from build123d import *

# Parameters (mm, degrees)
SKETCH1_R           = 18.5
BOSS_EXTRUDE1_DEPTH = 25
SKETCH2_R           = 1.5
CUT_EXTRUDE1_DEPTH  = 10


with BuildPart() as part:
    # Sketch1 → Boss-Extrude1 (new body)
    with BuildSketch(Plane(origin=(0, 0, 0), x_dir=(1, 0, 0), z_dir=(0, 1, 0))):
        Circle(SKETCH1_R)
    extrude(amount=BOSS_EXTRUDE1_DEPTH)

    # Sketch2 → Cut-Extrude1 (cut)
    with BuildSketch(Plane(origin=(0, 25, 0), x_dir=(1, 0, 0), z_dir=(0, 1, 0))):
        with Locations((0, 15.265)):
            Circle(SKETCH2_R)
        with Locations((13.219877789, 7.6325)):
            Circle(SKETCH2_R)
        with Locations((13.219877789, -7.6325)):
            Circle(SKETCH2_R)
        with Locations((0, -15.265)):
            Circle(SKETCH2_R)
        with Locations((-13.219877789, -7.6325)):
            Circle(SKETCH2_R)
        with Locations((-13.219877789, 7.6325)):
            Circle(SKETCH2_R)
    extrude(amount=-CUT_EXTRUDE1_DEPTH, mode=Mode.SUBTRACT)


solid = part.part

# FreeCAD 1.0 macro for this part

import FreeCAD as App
import Part
import Sketcher

doc = App.newDocument("Part")
body = doc.addObject("PartDesign::Body", "Body")

# Sketch on XZ plane
sketch1 = body.newObject("Sketcher::SketchObject", "Sketch")
sketch1.AttachmentSupport = (doc.getObject("XZ_Plane"), [""])
sketch1.MapMode = "FlatFace"
sketch1.addGeometry(Part.Circle(App.Vector(0, 0, 0), App.Vector(0, 0, 1), 18), False)
sketch1.addConstraint([
    Sketcher.Constraint("Coincident", 0, 3, -1, 1),
    Sketcher.Constraint("Diameter", 0, 37.0),
])
pad1 = body.newObject("PartDesign::Pad", "Pad")
pad1.Profile = sketch1
pad1.Length = 25
pad1.Reversed = True

# Sketch on XZ plane
sketch2 = body.newObject("Sketcher::SketchObject", "Sketch001")
sketch2.AttachmentSupport = (doc.getObject("XZ_Plane"), [""])
sketch2.MapMode = "FlatFace"
sketch2.AttachmentOffset = App.Placement(App.Vector(0, 0, -25), App.Rotation())
sketch2.addGeometry([
    Part.Circle(App.Vector(0, -15.3, 0), App.Vector(0, 0, 1), 1.5),  # 0
    Part.Circle(App.Vector(13.2, -7.6, 0), App.Vector(0, 0, 1), 1.5),  # 1
    Part.Circle(App.Vector(13.2, 7.6, 0), App.Vector(0, 0, 1), 1.5),  # 2
    Part.Circle(App.Vector(0, 15.3, 0), App.Vector(0, 0, 1), 1.5),  # 3
    Part.Circle(App.Vector(-13.2, 7.6, 0), App.Vector(0, 0, 1), 1.5),  # 4
    Part.Circle(App.Vector(-13.2, -7.6, 0), App.Vector(0, 0, 1), 1.5),  # 5
], False)
sketch2.addConstraint([
    Sketcher.Constraint("Equal", 0, 1),
    Sketcher.Constraint("Equal", 1, 2),
    Sketcher.Constraint("Equal", 2, 3),
    Sketcher.Constraint("Equal", 3, 4),
    Sketcher.Constraint("Equal", 4, 5),
    Sketcher.Constraint("Symmetric", 0, 3, 3, 3, -1, 1),
    Sketcher.Constraint("Symmetric", 1, 3, 4, 3, -1, 1),
    Sketcher.Constraint("Symmetric", 2, 3, 5, 3, -1, 1),
    Sketcher.Constraint("Symmetric", 2, 3, 4, 3, -2),
    Sketcher.Constraint("PointOnObject", 0, 3, -2),
    Sketcher.Constraint("Diameter", 0, 3.0),
    Sketcher.Constraint("DistanceY", 0, 3, 3, 3, 30.53),
    Sketcher.Constraint("DistanceY", 1, 3, 2, 3, 15.265),
    Sketcher.Constraint("DistanceX", -1, 1, 1, 3, 13.219878),
])
pocket1 = body.newObject("PartDesign::Pocket", "Pocket")
pocket1.Profile = sketch2
pocket1.Length = 10
pocket1.Reversed = True

doc.recompute()
